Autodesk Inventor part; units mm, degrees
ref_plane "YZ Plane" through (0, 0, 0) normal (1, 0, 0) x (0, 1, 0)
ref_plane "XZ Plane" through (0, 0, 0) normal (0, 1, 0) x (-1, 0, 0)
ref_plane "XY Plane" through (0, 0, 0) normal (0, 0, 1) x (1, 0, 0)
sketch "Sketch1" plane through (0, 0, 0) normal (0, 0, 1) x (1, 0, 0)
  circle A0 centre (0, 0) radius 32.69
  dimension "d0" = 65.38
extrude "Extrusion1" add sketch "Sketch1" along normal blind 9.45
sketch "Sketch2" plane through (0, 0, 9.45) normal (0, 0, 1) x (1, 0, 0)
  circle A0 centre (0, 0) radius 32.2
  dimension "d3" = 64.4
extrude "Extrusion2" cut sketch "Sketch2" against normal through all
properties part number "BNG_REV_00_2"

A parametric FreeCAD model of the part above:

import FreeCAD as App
import Part
import Sketcher

doc = App.newDocument("Part")
body = doc.addObject("PartDesign::Body", "Body")

sketch1 = body.newObject("Sketcher::SketchObject", "Sketch")
sketch1.AttachmentSupport = (doc.getObject("XY_Plane"), [""])
sketch1.MapMode = "FlatFace"
sketch1.addGeometry(Part.Circle(App.Vector(0, 0, 0), App.Vector(0, 0, 1), 33), False)
sketch1.addConstraint([
    Sketcher.Constraint("Coincident", 0, 3, -1, 1),
    Sketcher.Constraint("Diameter", 0, 65.38),
])
pad1 = body.newObject("PartDesign::Pad", "Pad")
pad1.Profile = sketch1
pad1.Length = 9.45

sketch2 = body.newObject("Sketcher::SketchObject", "Sketch001")
sketch2.AttachmentSupport = (doc.getObject("XY_Plane"), [""])
sketch2.MapMode = "FlatFace"
sketch2.AttachmentOffset = App.Placement(App.Vector(0, 0, 9.45), App.Rotation())
sketch2.addGeometry(Part.Circle(App.Vector(0, 0, 0), App.Vector(0, 0, 1), 32), False)
sketch2.addConstraint([
    Sketcher.Constraint("Coincident", 0, 3, -1, 1),
    Sketcher.Constraint("Diameter", 0, 64.4),
])
pocket1 = body.newObject("PartDesign::Pocket", "Pocket")
pocket1.Profile = sketch2
pocket1.Type = "ThroughAll"

doc.recompute()
